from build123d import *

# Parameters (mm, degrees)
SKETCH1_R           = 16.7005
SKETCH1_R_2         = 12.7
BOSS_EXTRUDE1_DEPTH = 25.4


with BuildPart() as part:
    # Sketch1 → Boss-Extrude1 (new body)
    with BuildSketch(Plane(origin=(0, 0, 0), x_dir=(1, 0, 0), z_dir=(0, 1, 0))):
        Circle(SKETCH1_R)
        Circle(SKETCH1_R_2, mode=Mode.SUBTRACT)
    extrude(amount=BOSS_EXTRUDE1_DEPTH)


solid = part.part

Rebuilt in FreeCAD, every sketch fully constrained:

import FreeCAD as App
import Part
import Sketcher
from FreeCAD import Vector
Q = App.Units.Quantity

doc = App.newDocument("Part")
body = doc.addObject("PartDesign::Body", "Body")

# Sketch on XZ plane
sketch1 = body.newObject("Sketcher::SketchObject", "Sketch")
sketch1.AttachmentSupport = (doc.getObject("XZ_Plane"), [""])
sketch1.MapMode = "FlatFace"
sketch1.addGeometry(Part.Circle(Vector(0, 0, 0), Vector(0, 0, 1), 17), False)
sketch1.addGeometry(Part.Circle(Vector(0, 0, 0), Vector(0, 0, 1), 13), False)
sketch1.addConstraint(Sketcher.Constraint("Coincident", 0, 3, -1, 1))
sketch1.addConstraint(Sketcher.Constraint("Coincident", 1, 3, -1, 1))
sketch1.addConstraint(Sketcher.Constraint("Diameter", 1, Q("1 in")))
sketch1.addConstraint(Sketcher.Constraint("Diameter", 0, Q("1.315 in")))
pad1 = body.newObject("PartDesign::Pad", "Pad")
pad1.Profile = sketch1
pad1.Length = Q("1 in")
pad1.Reversed = True

doc.recompute()
